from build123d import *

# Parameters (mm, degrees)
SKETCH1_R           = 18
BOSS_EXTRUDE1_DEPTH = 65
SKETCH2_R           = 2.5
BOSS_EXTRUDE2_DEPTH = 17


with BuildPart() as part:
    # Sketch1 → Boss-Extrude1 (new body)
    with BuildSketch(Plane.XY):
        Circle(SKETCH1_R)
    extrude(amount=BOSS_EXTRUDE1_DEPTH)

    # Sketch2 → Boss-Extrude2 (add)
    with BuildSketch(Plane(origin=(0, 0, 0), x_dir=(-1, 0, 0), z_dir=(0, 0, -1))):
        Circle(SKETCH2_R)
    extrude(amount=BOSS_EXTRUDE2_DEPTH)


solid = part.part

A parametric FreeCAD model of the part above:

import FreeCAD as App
import Part
import Sketcher
from FreeCAD import Vector
Q = App.Units.Quantity

doc = App.newDocument("Part")
body = doc.addObject("PartDesign::Body", "Body")

# Sketch on XY plane
sketch1 = body.newObject("Sketcher::SketchObject", "Sketch")
sketch1.AttachmentSupport = (doc.getObject("XY_Plane"), [""])
sketch1.MapMode = "FlatFace"
sketch1.addGeometry(Part.Circle(Vector(0, 0, 0), Vector(0, 0, 1), 18), False)
sketch1.addConstraint([
    Sketcher.Constraint("Coincident", 0, 3, -1, 1),
    Sketcher.Constraint("Diameter", 0, Q("36 mm")),
])
pad1 = body.newObject("PartDesign::Pad", "Pad")
pad1.Profile = sketch1
pad1.Length = 65

# Sketch on XY plane
sketch2 = body.newObject("Sketcher::SketchObject", "Sketch001")
sketch2.AttachmentSupport = (doc.getObject("XY_Plane"), [""])
sketch2.MapMode = "FlatFace"
sketch2.addGeometry(Part.Circle(Vector(0, 0, 0), Vector(0, 0, 1), 2.5), False)
sketch2.addConstraint([
    Sketcher.Constraint("Coincident", 0, 3, -1, 1),
    Sketcher.Constraint("Diameter", 0, Q("5 mm")),
])
pad2 = body.newObject("PartDesign::Pad", "Pad001")
pad2.Profile = sketch2
pad2.Length = 17
pad2.Reversed = True

doc.recompute()
